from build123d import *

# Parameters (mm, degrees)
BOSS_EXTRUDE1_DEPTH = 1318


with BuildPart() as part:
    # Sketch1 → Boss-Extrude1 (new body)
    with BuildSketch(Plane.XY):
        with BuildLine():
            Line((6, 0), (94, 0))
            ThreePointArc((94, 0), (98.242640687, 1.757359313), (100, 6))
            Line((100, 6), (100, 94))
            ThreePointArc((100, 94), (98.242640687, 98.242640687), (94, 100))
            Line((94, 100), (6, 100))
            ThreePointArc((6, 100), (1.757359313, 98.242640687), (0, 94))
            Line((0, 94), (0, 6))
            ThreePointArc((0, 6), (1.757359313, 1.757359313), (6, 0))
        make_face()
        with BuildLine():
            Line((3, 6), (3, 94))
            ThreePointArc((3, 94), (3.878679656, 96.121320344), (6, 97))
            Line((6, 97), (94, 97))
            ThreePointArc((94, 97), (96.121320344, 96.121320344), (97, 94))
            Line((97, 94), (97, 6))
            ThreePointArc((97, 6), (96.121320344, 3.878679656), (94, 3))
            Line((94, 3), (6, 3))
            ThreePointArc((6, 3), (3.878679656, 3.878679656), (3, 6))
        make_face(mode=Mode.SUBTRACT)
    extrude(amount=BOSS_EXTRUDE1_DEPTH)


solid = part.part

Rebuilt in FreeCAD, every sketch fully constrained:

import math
import FreeCAD as App
import Part
import Sketcher

V = App.Vector
Q = App.Units.Quantity

doc = App.newDocument("Part")
params = doc.addObject("Spreadsheet::Sheet", "Params")
for row, (alias, value) in enumerate([
    ("sketch1_radius", "6 mm"),
    ("sketch1_radius2", "3 mm"),
    ("sketch1_width", "88 mm"),
    ("pad1_length", "1318 mm"),
], start=1):
    params.set(f"A{row}", alias)
    params.set(f"B{row}", "=" + value)
    params.setAlias(f"B{row}", alias)

body = doc.addObject("PartDesign::Body", "Body")

# Sketch on XY plane
sketch1 = body.newObject("Sketcher::SketchObject", "Sketch")
sketch1.AttachmentSupport = (doc.getObject("XY_Plane"), [""])
sketch1.MapMode = "FlatFace"
sketch1.addGeometry(Part.LineSegment(V(6, 0, 0), V(94, 0, 0)), False)
sketch1.addGeometry(Part.ArcOfCircle(Part.Circle(V(94, 6, 0), V(0, 0, 1), 6), math.radians(-90), math.radians(0)), False)
sketch1.addGeometry(Part.LineSegment(V(100, 6, 0), V(100, 94, 0)), False)
sketch1.addGeometry(Part.ArcOfCircle(Part.Circle(V(94, 94, 0), V(0, 0, 1), 6), math.radians(0), math.radians(90)), False)
sketch1.addGeometry(Part.LineSegment(V(94, 100, 0), V(6, 100, 0)), False)
sketch1.addGeometry(Part.ArcOfCircle(Part.Circle(V(6, 94, 0), V(0, 0, 1), 6), math.radians(90), math.radians(180)), False)
sketch1.addGeometry(Part.LineSegment(V(0, 94, 0), V(0, 6, 0)), False)
sketch1.addGeometry(Part.ArcOfCircle(Part.Circle(V(6, 6, 0), V(0, 0, 1), 6), math.radians(180), math.radians(270)), False)
sketch1.addGeometry(Part.ArcOfCircle(Part.Circle(V(6, 6, 0), V(0, 0, 1), 3), math.radians(180), math.radians(270)), False)
sketch1.addGeometry(Part.LineSegment(V(3, 6, 0), V(3, 94, 0)), False)
sketch1.addGeometry(Part.ArcOfCircle(Part.Circle(V(6, 94, 0), V(0, 0, 1), 3), math.radians(90), math.radians(180)), False)
sketch1.addGeometry(Part.LineSegment(V(6, 97, 0), V(94, 97, 0)), False)
sketch1.addGeometry(Part.ArcOfCircle(Part.Circle(V(94, 94, 0), V(0, 0, 1), 3), math.radians(0), math.radians(90)), False)
sketch1.addGeometry(Part.LineSegment(V(97, 94, 0), V(97, 6, 0)), False)
sketch1.addGeometry(Part.ArcOfCircle(Part.Circle(V(94, 6, 0), V(0, 0, 1), 3), math.radians(-90), math.radians(0)), False)
sketch1.addGeometry(Part.LineSegment(V(94, 3, 0), V(6, 3, 0)), False)
sketch1.addConstraint(Sketcher.Constraint("Tangent", 0, 2, 1, 1))
sketch1.addConstraint(Sketcher.Constraint("Tangent", 1, 2, 2, 1))
sketch1.addConstraint(Sketcher.Constraint("Tangent", 2, 2, 3, 1))
sketch1.addConstraint(Sketcher.Constraint("Tangent", 3, 2, 4, 1))
sketch1.addConstraint(Sketcher.Constraint("Tangent", 4, 2, 5, 1))
sketch1.addConstraint(Sketcher.Constraint("Tangent", 5, 2, 6, 1))
sketch1.addConstraint(Sketcher.Constraint("Tangent", 6, 2, 7, 1))
sketch1.addConstraint(Sketcher.Constraint("Tangent", 7, 2, 0, 1))
sketch1.addConstraint(Sketcher.Constraint("Tangent", 8, 1, 9, 1))
sketch1.addConstraint(Sketcher.Constraint("Tangent", 9, 2, 10, 2))
sketch1.addConstraint(Sketcher.Constraint("Tangent", 10, 1, 11, 1))
sketch1.addConstraint(Sketcher.Constraint("Tangent", 11, 2, 12, 2))
sketch1.addConstraint(Sketcher.Constraint("Tangent", 12, 1, 13, 1))
sketch1.addConstraint(Sketcher.Constraint("Tangent", 13, 2, 14, 2))
sketch1.addConstraint(Sketcher.Constraint("Tangent", 14, 1, 15, 1))
sketch1.addConstraint(Sketcher.Constraint("Tangent", 15, 2, 8, 2))
sketch1.addConstraint(Sketcher.Constraint("Horizontal", 0))
sketch1.addConstraint(Sketcher.Constraint("Vertical", 2))
sketch1.addConstraint(Sketcher.Constraint("Horizontal", 4))
sketch1.addConstraint(Sketcher.Constraint("Vertical", 6))
sketch1.addConstraint(Sketcher.Constraint("Vertical", 9))
sketch1.addConstraint(Sketcher.Constraint("Horizontal", 11))
sketch1.addConstraint(Sketcher.Constraint("Vertical", 13))
sketch1.addConstraint(Sketcher.Constraint("Horizontal", 15))
sketch1.addConstraint(Sketcher.Constraint("Coincident", 8, 3, 7, 3))
sketch1.addConstraint(Sketcher.Constraint("Coincident", 10, 3, 5, 3))
sketch1.addConstraint(Sketcher.Constraint("Coincident", 12, 3, 3, 3))
sketch1.addConstraint(Sketcher.Constraint("Equal", 1, 3))
sketch1.addConstraint(Sketcher.Constraint("Equal", 3, 5))
sketch1.addConstraint(Sketcher.Constraint("Equal", 5, 7))
sketch1.addConstraint(Sketcher.Constraint("Equal", 12, 14))
sketch1.addConstraint(Sketcher.Constraint("PointOnObject", 0, 2, -1))
sketch1.addConstraint(Sketcher.Constraint("PointOnObject", 5, 2, -2))
sketch1.addConstraint(Sketcher.Constraint("Equal", 15, 2))
sketch1.addConstraint(Sketcher.Constraint("Radius", 1, Q("6 mm")))
sketch1.addConstraint(Sketcher.Constraint("Radius", 8, Q("3 mm")))
sketch1.addConstraint(Sketcher.Constraint("DistanceX", 0, 1, 0, 2, Q("88 mm")))
sketch1.setExpression("Constraints[34]", "Params.sketch1_radius")
sketch1.setExpression("Constraints[35]", "Params.sketch1_radius2")
sketch1.setExpression("Constraints[36]", "Params.sketch1_width")
pad1 = body.newObject("PartDesign::Pad", "Pad")
pad1.Profile = sketch1
pad1.setExpression("Length", "Params.pad1_length")

doc.recompute()
